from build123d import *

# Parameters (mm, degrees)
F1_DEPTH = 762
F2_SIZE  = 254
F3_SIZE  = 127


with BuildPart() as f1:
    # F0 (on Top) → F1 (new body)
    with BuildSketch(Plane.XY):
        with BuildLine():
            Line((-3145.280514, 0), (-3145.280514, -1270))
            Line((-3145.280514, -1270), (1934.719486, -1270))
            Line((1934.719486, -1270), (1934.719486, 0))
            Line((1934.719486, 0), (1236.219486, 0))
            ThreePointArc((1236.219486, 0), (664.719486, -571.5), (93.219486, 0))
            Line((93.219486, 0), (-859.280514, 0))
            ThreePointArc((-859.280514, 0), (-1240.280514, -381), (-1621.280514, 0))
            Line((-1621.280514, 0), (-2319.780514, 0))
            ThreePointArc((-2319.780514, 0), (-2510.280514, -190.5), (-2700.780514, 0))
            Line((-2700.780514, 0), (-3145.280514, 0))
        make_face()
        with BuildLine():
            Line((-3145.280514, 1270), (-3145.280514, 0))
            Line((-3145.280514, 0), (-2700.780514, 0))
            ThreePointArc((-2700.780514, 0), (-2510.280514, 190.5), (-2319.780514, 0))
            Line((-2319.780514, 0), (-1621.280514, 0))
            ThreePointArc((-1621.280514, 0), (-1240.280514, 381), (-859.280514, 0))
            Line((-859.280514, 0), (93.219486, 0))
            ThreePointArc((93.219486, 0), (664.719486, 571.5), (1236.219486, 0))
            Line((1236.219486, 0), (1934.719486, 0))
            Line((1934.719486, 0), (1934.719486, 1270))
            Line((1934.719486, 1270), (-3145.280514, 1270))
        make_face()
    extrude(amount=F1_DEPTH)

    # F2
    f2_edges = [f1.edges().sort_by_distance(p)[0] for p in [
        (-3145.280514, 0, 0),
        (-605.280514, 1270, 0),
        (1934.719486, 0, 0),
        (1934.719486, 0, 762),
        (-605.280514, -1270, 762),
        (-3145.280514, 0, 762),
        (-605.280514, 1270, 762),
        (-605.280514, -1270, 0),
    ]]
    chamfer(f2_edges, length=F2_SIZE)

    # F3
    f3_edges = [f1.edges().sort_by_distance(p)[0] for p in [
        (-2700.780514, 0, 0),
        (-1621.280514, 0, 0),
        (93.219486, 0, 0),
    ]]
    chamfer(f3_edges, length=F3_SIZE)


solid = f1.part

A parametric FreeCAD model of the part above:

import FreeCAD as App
import Part
import Sketcher

V = App.Vector
Q = App.Units.Quantity


def edges_at(feature, points):
    """Names of the edges that pass closest to the given points."""
    edges = feature.Shape.Edges
    near = lambda p: min(range(len(edges)), key=lambda i: edges[i].distToShape(Part.Vertex(*p))[0])
    return sorted({f"Edge{near(p) + 1}" for p in points})

doc = App.newDocument("Part")
body = doc.addObject("PartDesign::Body", "Body")

sketch1 = body.newObject("Sketcher::SketchObject", "Sketch")
sketch1.AttachmentSupport = (doc.getObject("XY_Plane"), [""])
sketch1.MapMode = "FlatFace"
sketch1.addGeometry([
    Part.LineSegment(V(-3145, -1270, 0), V(1935, -1270, 0)),
    Part.LineSegment(V(1935, -1270, 0), V(1935, 1270, 0)),
    Part.LineSegment(V(1935, 1270, 0), V(-3145, 1270, 0)),
    Part.LineSegment(V(-3145, 1270, 0), V(-3145, -1270, 0)),
    Part.Circle(V(665, 0, 0), V(0, 0, 1), 572),
    Part.Circle(V(-1240, 0, 0), V(0, 0, 1), 381),
    Part.Circle(V(-2510, 0, 0), V(0, 0, 1), 190),
], False)
sketch1.addConstraint([
    Sketcher.Constraint("Coincident", 0, 2, 1, 1),
    Sketcher.Constraint("Coincident", 1, 2, 2, 1),
    Sketcher.Constraint("Coincident", 2, 2, 3, 1),
    Sketcher.Constraint("Coincident", 3, 2, 0, 1),
    Sketcher.Constraint("Horizontal", 0),
    Sketcher.Constraint("Vertical", 1),
    Sketcher.Constraint("Horizontal", 2),
    Sketcher.Constraint("Vertical", 3),
    Sketcher.Constraint("PointOnObject", 4, 3, -1),
    Sketcher.Constraint("PointOnObject", 5, 3, -1),
    Sketcher.Constraint("PointOnObject", 6, 3, -1),
    Sketcher.Constraint("Diameter", 4, Q("45 in")),
    Sketcher.Constraint("Diameter", 5, Q("30 in")),
    Sketcher.Constraint("Diameter", 6, Q("15 in")),
    Sketcher.Constraint("DistanceX", 0, 1, 0, 2, Q("200 in")),
    Sketcher.Constraint("DistanceY", 1, 1, 1, 2, Q("100 in")),
    Sketcher.Constraint("DistanceY", 0, 2, -1, 1, Q("50 in")),
    Sketcher.Constraint("DistanceX", 5, 3, 4, 3, Q("75 in")),
    Sketcher.Constraint("DistanceX", 6, 3, 5, 3, Q("50 in")),
    Sketcher.Constraint("DistanceX", 4, 3, 0, 2, Q("50 in")),
    Sketcher.Constraint("DistanceX", -1, 1, 4, 3, 664.719486),
])
pad1 = body.newObject("PartDesign::Pad", "Pad")
pad1.Profile = sketch1
pad1.Length = Q("30 in")
doc.recompute()

chamfer = body.newObject("PartDesign::Chamfer", "Chamfer")
chamfer.Base = (pad1, edges_at(pad1, [
    (-3145.281, 0, 0),
    (-605.281, 1270, 0),
    (1934.719, 0, 0),
    (1934.719, 0, 762),
    (-605.281, -1270, 762),
    (-3145.281, 0, 762),
    (-605.281, 1270, 762),
    (-605.281, -1270, 0),
]))
chamfer.Size = Q("10 in")
doc.recompute()

chamfer2 = body.newObject("PartDesign::Chamfer", "Chamfer001")
chamfer2.Base = (chamfer, edges_at(chamfer, [(-2319.781, 0, 0), (-859.281, 0, 0), (1236.219, 0, 0)]))
chamfer2.Size = Q("5 in")

doc.recompute()
